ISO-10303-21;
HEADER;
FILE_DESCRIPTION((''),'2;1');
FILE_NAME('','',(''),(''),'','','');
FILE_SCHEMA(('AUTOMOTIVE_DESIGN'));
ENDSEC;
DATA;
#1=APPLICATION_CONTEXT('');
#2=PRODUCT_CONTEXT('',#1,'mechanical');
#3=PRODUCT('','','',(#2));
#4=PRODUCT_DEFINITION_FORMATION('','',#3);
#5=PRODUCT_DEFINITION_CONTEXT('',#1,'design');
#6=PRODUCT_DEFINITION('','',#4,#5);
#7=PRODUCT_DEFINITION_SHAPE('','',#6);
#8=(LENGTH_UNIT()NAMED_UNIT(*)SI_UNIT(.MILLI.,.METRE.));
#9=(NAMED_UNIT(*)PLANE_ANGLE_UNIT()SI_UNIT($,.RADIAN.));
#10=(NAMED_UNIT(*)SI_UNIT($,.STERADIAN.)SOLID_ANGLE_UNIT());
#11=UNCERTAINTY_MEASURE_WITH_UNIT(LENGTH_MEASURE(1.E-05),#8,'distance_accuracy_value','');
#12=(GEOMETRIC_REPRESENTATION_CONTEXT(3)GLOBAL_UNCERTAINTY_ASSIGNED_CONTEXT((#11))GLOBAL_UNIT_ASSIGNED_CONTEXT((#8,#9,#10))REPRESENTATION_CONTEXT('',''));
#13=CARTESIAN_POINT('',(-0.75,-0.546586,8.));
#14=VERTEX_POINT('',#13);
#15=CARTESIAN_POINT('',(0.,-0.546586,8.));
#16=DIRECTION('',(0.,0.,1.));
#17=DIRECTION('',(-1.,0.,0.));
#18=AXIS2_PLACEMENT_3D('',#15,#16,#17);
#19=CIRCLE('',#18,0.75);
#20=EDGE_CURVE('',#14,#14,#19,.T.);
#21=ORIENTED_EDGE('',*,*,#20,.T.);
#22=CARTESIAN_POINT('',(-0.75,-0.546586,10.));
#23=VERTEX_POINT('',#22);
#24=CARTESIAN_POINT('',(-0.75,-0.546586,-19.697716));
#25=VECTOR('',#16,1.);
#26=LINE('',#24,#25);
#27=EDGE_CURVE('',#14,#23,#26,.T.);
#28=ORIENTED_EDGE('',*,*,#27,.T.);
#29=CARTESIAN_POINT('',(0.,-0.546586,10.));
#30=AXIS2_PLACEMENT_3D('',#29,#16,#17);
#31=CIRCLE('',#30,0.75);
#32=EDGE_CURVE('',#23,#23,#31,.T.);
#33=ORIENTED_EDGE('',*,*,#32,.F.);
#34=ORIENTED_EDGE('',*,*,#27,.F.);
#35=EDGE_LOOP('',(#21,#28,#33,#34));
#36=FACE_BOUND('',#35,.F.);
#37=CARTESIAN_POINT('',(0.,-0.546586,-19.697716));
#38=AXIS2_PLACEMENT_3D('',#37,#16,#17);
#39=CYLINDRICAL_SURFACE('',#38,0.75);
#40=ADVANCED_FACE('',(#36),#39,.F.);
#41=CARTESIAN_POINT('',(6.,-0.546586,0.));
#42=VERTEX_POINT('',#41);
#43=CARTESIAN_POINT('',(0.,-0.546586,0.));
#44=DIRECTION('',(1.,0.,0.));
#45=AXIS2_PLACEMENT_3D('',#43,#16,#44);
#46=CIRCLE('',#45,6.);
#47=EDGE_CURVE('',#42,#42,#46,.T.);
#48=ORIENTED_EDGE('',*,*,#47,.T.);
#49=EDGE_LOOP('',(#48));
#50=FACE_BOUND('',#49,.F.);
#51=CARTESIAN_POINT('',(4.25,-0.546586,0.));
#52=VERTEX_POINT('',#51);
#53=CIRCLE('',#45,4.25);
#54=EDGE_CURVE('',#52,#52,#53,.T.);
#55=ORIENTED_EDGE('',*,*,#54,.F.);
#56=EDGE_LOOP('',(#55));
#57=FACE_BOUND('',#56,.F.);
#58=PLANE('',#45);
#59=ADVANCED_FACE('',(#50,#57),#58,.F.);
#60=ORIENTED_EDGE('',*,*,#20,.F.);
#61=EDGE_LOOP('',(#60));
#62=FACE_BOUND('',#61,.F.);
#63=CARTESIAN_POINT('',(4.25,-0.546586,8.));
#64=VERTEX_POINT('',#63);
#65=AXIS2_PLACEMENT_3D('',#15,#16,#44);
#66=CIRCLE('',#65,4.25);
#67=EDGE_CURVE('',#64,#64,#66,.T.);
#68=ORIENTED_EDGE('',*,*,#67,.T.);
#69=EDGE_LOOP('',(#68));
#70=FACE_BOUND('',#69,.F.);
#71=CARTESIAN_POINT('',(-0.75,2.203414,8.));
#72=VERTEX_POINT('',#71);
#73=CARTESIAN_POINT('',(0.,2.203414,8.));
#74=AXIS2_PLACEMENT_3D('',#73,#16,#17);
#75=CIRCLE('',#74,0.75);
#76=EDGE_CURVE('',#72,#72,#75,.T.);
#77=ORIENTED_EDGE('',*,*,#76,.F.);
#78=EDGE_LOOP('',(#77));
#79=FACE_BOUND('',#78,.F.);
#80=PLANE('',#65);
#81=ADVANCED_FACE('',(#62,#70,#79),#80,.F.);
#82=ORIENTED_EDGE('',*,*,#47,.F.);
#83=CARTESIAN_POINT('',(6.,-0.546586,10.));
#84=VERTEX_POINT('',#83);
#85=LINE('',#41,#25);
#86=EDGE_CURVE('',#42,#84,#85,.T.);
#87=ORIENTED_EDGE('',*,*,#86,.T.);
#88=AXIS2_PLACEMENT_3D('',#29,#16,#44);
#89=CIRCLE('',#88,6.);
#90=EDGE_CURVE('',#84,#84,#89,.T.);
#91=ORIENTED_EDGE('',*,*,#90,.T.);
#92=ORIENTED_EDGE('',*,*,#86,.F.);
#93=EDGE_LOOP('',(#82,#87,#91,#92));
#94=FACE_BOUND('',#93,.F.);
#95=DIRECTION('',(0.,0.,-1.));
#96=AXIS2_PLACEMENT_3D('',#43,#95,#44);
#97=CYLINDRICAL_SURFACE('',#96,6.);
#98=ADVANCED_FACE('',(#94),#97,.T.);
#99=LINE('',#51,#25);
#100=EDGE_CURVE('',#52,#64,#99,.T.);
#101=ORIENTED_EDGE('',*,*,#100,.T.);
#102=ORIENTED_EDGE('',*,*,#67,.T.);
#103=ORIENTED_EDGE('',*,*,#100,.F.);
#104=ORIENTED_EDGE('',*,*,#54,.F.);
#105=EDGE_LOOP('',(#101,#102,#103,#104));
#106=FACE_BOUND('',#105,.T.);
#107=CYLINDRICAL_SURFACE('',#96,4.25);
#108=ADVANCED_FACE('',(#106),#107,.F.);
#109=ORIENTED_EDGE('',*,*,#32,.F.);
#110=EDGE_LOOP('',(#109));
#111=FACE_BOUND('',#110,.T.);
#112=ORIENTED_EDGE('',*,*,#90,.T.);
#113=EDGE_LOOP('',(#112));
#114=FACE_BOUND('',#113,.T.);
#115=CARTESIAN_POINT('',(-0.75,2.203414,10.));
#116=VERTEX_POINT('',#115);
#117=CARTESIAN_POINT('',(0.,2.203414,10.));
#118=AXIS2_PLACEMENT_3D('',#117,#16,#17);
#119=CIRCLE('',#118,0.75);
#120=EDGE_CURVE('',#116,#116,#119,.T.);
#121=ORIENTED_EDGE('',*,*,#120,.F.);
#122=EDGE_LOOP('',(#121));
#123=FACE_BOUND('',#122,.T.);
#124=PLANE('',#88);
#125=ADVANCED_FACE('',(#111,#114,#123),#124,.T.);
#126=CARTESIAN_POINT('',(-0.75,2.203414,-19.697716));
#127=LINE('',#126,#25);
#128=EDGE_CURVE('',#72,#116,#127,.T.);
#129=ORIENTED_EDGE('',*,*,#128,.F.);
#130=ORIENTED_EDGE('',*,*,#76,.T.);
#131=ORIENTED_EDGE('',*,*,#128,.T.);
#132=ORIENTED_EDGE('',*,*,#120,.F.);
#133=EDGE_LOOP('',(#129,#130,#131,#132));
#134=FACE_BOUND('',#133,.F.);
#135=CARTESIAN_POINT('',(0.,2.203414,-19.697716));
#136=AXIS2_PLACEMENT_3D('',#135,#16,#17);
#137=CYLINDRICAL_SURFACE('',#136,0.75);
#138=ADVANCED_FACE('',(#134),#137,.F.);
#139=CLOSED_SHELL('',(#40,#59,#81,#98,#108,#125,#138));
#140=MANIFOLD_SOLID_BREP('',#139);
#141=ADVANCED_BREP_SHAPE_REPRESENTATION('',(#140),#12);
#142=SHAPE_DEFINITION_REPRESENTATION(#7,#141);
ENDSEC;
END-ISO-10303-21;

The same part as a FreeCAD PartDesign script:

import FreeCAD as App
import Part
import Sketcher
from FreeCAD import Vector

doc = App.newDocument("Part")
body = doc.addObject("PartDesign::Body", "Body")

# Sketch on XY plane
sketch1 = body.newObject("Sketcher::SketchObject", "Sketch")
sketch1.AttachmentSupport = (doc.getObject("XY_Plane"), [""])
sketch1.MapMode = "FlatFace"
sketch1.addGeometry(Part.Circle(Vector(0, -1, 0), Vector(0, 0, 1), 6), False)
sketch1.addConstraint(Sketcher.Constraint("PointOnObject", 0, 3, -2))
sketch1.addConstraint(Sketcher.Constraint("Diameter", 0, 12.0))
sketch1.addConstraint(Sketcher.Constraint("DistanceY", 0, 3, -1, 1, 0.546586))
pad1 = body.newObject("PartDesign::Pad", "Pad")
pad1.Profile = sketch1
pad1.Length = 10

# Sketch on XY plane
sketch2 = body.newObject("Sketcher::SketchObject", "Sketch001")
sketch2.AttachmentSupport = (doc.getObject("XY_Plane"), [""])
sketch2.MapMode = "FlatFace"
sketch2.addGeometry(Part.Circle(Vector(0, -0.5, 0), Vector(0, 0, 1), 4.2), False)
sketch2.addConstraint(Sketcher.Constraint("PointOnObject", 0, 3, -2))
sketch2.addConstraint(Sketcher.Constraint("Diameter", 0, 8.5))
sketch2.addConstraint(Sketcher.Constraint("DistanceY", 0, 3, -1, 1, 0.546586))
pocket1 = body.newObject("PartDesign::Pocket", "Pocket")
pocket1.Profile = sketch2
pocket1.Length = 8
pocket1.Reversed = True

# Sketch on XY plane
sketch3 = body.newObject("Sketcher::SketchObject", "Sketch002")
sketch3.AttachmentSupport = (doc.getObject("XY_Plane"), [""])
sketch3.MapMode = "FlatFace"
sketch3.addGeometry(Part.Circle(Vector(0, -0.5, 0), Vector(0, 0, 1), 0.8), False)
sketch3.addGeometry(Part.Circle(Vector(0, 2.2, 0), Vector(0, 0, 1), 0.8), False)
sketch3.addConstraint(Sketcher.Constraint("Equal", 0, 1))
sketch3.addConstraint(Sketcher.Constraint("PointOnObject", 0, 3, -2))
sketch3.addConstraint(Sketcher.Constraint("PointOnObject", 1, 3, -2))
sketch3.addConstraint(Sketcher.Constraint("Diameter", 0, 1.5))
sketch3.addConstraint(Sketcher.Constraint("DistanceY", 0, 3, 1, 3, 2.75))
sketch3.addConstraint(Sketcher.Constraint("DistanceY", 0, 3, -1, 1, 0.546586))
doc.recompute()
hole = body.newObject("PartDesign::Hole", "Hole")
hole.Profile = sketch3
hole.ThreadType = "None"
hole.Diameter = 1.5
hole.DepthType = "ThroughAll"
hole.Reversed = True

doc.recompute()
